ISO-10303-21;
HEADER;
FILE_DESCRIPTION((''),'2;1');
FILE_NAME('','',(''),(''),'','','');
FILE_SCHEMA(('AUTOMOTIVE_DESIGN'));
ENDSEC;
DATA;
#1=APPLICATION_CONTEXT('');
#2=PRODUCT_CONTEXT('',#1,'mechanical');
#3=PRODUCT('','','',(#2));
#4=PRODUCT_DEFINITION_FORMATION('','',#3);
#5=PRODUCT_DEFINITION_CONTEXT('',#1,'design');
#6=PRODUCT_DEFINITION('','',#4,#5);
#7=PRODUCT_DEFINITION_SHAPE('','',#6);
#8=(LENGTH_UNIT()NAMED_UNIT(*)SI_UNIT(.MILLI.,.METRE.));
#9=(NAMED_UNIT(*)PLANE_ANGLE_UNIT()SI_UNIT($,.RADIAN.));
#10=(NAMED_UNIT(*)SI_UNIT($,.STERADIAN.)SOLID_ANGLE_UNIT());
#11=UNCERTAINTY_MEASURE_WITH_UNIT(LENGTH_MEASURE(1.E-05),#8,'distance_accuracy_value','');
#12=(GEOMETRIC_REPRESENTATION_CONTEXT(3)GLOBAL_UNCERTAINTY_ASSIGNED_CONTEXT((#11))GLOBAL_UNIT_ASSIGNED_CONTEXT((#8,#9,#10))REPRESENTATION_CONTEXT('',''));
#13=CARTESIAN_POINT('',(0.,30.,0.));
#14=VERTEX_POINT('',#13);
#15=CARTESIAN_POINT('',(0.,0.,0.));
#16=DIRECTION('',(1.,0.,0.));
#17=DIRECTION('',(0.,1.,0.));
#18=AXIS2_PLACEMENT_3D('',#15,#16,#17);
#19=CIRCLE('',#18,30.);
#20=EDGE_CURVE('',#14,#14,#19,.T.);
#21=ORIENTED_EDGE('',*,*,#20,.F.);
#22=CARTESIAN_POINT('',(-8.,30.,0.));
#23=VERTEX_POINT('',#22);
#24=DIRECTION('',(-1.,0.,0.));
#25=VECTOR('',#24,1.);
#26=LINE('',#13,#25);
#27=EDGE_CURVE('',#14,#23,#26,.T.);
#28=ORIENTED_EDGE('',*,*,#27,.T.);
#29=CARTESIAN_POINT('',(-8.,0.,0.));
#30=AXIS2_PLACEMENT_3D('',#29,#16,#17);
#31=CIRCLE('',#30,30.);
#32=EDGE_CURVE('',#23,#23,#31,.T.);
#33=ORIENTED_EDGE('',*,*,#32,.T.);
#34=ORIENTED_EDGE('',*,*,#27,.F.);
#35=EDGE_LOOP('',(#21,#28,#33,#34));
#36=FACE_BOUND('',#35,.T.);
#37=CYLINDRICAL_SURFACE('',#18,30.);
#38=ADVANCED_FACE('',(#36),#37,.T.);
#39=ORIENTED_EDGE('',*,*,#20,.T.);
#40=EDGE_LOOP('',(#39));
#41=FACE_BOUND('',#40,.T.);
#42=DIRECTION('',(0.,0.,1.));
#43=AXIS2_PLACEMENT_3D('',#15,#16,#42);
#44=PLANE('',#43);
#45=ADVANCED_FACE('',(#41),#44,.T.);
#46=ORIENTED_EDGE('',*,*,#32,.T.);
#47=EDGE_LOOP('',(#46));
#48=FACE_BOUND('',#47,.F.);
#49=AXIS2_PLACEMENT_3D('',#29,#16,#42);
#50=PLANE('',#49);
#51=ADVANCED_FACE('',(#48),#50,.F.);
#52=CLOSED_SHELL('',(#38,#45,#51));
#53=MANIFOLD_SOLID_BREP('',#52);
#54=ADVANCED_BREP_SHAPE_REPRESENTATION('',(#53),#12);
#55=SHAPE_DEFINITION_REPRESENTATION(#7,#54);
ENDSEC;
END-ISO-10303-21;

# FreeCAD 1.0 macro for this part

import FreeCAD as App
import Part
import Sketcher
Q = App.Units.Quantity

doc = App.newDocument("Part")
body = doc.addObject("PartDesign::Body", "Body")

sketch1 = doc.addObject("Sketcher::SketchObject", "Sketch")
body.addObject(sketch1)
sketch1.AttachmentSupport = (doc.YZ_Plane, [""])
sketch1.MapMode = "FlatFace"
sketch1.addGeometry(Part.Circle(App.Vector(0, 0, 0), App.Vector(0, 0, 1), 30), False)
sketch1.addConstraint([
    Sketcher.Constraint("Coincident", 0, 3, -1, 1),
    Sketcher.Constraint("Diameter", 0, Q("60 mm")),
])
pad1 = doc.addObject("PartDesign::Pad", "Pad")
body.addObject(pad1)
pad1.Profile = sketch1
pad1.Length = 8
pad1.Reversed = True

doc.recompute()
